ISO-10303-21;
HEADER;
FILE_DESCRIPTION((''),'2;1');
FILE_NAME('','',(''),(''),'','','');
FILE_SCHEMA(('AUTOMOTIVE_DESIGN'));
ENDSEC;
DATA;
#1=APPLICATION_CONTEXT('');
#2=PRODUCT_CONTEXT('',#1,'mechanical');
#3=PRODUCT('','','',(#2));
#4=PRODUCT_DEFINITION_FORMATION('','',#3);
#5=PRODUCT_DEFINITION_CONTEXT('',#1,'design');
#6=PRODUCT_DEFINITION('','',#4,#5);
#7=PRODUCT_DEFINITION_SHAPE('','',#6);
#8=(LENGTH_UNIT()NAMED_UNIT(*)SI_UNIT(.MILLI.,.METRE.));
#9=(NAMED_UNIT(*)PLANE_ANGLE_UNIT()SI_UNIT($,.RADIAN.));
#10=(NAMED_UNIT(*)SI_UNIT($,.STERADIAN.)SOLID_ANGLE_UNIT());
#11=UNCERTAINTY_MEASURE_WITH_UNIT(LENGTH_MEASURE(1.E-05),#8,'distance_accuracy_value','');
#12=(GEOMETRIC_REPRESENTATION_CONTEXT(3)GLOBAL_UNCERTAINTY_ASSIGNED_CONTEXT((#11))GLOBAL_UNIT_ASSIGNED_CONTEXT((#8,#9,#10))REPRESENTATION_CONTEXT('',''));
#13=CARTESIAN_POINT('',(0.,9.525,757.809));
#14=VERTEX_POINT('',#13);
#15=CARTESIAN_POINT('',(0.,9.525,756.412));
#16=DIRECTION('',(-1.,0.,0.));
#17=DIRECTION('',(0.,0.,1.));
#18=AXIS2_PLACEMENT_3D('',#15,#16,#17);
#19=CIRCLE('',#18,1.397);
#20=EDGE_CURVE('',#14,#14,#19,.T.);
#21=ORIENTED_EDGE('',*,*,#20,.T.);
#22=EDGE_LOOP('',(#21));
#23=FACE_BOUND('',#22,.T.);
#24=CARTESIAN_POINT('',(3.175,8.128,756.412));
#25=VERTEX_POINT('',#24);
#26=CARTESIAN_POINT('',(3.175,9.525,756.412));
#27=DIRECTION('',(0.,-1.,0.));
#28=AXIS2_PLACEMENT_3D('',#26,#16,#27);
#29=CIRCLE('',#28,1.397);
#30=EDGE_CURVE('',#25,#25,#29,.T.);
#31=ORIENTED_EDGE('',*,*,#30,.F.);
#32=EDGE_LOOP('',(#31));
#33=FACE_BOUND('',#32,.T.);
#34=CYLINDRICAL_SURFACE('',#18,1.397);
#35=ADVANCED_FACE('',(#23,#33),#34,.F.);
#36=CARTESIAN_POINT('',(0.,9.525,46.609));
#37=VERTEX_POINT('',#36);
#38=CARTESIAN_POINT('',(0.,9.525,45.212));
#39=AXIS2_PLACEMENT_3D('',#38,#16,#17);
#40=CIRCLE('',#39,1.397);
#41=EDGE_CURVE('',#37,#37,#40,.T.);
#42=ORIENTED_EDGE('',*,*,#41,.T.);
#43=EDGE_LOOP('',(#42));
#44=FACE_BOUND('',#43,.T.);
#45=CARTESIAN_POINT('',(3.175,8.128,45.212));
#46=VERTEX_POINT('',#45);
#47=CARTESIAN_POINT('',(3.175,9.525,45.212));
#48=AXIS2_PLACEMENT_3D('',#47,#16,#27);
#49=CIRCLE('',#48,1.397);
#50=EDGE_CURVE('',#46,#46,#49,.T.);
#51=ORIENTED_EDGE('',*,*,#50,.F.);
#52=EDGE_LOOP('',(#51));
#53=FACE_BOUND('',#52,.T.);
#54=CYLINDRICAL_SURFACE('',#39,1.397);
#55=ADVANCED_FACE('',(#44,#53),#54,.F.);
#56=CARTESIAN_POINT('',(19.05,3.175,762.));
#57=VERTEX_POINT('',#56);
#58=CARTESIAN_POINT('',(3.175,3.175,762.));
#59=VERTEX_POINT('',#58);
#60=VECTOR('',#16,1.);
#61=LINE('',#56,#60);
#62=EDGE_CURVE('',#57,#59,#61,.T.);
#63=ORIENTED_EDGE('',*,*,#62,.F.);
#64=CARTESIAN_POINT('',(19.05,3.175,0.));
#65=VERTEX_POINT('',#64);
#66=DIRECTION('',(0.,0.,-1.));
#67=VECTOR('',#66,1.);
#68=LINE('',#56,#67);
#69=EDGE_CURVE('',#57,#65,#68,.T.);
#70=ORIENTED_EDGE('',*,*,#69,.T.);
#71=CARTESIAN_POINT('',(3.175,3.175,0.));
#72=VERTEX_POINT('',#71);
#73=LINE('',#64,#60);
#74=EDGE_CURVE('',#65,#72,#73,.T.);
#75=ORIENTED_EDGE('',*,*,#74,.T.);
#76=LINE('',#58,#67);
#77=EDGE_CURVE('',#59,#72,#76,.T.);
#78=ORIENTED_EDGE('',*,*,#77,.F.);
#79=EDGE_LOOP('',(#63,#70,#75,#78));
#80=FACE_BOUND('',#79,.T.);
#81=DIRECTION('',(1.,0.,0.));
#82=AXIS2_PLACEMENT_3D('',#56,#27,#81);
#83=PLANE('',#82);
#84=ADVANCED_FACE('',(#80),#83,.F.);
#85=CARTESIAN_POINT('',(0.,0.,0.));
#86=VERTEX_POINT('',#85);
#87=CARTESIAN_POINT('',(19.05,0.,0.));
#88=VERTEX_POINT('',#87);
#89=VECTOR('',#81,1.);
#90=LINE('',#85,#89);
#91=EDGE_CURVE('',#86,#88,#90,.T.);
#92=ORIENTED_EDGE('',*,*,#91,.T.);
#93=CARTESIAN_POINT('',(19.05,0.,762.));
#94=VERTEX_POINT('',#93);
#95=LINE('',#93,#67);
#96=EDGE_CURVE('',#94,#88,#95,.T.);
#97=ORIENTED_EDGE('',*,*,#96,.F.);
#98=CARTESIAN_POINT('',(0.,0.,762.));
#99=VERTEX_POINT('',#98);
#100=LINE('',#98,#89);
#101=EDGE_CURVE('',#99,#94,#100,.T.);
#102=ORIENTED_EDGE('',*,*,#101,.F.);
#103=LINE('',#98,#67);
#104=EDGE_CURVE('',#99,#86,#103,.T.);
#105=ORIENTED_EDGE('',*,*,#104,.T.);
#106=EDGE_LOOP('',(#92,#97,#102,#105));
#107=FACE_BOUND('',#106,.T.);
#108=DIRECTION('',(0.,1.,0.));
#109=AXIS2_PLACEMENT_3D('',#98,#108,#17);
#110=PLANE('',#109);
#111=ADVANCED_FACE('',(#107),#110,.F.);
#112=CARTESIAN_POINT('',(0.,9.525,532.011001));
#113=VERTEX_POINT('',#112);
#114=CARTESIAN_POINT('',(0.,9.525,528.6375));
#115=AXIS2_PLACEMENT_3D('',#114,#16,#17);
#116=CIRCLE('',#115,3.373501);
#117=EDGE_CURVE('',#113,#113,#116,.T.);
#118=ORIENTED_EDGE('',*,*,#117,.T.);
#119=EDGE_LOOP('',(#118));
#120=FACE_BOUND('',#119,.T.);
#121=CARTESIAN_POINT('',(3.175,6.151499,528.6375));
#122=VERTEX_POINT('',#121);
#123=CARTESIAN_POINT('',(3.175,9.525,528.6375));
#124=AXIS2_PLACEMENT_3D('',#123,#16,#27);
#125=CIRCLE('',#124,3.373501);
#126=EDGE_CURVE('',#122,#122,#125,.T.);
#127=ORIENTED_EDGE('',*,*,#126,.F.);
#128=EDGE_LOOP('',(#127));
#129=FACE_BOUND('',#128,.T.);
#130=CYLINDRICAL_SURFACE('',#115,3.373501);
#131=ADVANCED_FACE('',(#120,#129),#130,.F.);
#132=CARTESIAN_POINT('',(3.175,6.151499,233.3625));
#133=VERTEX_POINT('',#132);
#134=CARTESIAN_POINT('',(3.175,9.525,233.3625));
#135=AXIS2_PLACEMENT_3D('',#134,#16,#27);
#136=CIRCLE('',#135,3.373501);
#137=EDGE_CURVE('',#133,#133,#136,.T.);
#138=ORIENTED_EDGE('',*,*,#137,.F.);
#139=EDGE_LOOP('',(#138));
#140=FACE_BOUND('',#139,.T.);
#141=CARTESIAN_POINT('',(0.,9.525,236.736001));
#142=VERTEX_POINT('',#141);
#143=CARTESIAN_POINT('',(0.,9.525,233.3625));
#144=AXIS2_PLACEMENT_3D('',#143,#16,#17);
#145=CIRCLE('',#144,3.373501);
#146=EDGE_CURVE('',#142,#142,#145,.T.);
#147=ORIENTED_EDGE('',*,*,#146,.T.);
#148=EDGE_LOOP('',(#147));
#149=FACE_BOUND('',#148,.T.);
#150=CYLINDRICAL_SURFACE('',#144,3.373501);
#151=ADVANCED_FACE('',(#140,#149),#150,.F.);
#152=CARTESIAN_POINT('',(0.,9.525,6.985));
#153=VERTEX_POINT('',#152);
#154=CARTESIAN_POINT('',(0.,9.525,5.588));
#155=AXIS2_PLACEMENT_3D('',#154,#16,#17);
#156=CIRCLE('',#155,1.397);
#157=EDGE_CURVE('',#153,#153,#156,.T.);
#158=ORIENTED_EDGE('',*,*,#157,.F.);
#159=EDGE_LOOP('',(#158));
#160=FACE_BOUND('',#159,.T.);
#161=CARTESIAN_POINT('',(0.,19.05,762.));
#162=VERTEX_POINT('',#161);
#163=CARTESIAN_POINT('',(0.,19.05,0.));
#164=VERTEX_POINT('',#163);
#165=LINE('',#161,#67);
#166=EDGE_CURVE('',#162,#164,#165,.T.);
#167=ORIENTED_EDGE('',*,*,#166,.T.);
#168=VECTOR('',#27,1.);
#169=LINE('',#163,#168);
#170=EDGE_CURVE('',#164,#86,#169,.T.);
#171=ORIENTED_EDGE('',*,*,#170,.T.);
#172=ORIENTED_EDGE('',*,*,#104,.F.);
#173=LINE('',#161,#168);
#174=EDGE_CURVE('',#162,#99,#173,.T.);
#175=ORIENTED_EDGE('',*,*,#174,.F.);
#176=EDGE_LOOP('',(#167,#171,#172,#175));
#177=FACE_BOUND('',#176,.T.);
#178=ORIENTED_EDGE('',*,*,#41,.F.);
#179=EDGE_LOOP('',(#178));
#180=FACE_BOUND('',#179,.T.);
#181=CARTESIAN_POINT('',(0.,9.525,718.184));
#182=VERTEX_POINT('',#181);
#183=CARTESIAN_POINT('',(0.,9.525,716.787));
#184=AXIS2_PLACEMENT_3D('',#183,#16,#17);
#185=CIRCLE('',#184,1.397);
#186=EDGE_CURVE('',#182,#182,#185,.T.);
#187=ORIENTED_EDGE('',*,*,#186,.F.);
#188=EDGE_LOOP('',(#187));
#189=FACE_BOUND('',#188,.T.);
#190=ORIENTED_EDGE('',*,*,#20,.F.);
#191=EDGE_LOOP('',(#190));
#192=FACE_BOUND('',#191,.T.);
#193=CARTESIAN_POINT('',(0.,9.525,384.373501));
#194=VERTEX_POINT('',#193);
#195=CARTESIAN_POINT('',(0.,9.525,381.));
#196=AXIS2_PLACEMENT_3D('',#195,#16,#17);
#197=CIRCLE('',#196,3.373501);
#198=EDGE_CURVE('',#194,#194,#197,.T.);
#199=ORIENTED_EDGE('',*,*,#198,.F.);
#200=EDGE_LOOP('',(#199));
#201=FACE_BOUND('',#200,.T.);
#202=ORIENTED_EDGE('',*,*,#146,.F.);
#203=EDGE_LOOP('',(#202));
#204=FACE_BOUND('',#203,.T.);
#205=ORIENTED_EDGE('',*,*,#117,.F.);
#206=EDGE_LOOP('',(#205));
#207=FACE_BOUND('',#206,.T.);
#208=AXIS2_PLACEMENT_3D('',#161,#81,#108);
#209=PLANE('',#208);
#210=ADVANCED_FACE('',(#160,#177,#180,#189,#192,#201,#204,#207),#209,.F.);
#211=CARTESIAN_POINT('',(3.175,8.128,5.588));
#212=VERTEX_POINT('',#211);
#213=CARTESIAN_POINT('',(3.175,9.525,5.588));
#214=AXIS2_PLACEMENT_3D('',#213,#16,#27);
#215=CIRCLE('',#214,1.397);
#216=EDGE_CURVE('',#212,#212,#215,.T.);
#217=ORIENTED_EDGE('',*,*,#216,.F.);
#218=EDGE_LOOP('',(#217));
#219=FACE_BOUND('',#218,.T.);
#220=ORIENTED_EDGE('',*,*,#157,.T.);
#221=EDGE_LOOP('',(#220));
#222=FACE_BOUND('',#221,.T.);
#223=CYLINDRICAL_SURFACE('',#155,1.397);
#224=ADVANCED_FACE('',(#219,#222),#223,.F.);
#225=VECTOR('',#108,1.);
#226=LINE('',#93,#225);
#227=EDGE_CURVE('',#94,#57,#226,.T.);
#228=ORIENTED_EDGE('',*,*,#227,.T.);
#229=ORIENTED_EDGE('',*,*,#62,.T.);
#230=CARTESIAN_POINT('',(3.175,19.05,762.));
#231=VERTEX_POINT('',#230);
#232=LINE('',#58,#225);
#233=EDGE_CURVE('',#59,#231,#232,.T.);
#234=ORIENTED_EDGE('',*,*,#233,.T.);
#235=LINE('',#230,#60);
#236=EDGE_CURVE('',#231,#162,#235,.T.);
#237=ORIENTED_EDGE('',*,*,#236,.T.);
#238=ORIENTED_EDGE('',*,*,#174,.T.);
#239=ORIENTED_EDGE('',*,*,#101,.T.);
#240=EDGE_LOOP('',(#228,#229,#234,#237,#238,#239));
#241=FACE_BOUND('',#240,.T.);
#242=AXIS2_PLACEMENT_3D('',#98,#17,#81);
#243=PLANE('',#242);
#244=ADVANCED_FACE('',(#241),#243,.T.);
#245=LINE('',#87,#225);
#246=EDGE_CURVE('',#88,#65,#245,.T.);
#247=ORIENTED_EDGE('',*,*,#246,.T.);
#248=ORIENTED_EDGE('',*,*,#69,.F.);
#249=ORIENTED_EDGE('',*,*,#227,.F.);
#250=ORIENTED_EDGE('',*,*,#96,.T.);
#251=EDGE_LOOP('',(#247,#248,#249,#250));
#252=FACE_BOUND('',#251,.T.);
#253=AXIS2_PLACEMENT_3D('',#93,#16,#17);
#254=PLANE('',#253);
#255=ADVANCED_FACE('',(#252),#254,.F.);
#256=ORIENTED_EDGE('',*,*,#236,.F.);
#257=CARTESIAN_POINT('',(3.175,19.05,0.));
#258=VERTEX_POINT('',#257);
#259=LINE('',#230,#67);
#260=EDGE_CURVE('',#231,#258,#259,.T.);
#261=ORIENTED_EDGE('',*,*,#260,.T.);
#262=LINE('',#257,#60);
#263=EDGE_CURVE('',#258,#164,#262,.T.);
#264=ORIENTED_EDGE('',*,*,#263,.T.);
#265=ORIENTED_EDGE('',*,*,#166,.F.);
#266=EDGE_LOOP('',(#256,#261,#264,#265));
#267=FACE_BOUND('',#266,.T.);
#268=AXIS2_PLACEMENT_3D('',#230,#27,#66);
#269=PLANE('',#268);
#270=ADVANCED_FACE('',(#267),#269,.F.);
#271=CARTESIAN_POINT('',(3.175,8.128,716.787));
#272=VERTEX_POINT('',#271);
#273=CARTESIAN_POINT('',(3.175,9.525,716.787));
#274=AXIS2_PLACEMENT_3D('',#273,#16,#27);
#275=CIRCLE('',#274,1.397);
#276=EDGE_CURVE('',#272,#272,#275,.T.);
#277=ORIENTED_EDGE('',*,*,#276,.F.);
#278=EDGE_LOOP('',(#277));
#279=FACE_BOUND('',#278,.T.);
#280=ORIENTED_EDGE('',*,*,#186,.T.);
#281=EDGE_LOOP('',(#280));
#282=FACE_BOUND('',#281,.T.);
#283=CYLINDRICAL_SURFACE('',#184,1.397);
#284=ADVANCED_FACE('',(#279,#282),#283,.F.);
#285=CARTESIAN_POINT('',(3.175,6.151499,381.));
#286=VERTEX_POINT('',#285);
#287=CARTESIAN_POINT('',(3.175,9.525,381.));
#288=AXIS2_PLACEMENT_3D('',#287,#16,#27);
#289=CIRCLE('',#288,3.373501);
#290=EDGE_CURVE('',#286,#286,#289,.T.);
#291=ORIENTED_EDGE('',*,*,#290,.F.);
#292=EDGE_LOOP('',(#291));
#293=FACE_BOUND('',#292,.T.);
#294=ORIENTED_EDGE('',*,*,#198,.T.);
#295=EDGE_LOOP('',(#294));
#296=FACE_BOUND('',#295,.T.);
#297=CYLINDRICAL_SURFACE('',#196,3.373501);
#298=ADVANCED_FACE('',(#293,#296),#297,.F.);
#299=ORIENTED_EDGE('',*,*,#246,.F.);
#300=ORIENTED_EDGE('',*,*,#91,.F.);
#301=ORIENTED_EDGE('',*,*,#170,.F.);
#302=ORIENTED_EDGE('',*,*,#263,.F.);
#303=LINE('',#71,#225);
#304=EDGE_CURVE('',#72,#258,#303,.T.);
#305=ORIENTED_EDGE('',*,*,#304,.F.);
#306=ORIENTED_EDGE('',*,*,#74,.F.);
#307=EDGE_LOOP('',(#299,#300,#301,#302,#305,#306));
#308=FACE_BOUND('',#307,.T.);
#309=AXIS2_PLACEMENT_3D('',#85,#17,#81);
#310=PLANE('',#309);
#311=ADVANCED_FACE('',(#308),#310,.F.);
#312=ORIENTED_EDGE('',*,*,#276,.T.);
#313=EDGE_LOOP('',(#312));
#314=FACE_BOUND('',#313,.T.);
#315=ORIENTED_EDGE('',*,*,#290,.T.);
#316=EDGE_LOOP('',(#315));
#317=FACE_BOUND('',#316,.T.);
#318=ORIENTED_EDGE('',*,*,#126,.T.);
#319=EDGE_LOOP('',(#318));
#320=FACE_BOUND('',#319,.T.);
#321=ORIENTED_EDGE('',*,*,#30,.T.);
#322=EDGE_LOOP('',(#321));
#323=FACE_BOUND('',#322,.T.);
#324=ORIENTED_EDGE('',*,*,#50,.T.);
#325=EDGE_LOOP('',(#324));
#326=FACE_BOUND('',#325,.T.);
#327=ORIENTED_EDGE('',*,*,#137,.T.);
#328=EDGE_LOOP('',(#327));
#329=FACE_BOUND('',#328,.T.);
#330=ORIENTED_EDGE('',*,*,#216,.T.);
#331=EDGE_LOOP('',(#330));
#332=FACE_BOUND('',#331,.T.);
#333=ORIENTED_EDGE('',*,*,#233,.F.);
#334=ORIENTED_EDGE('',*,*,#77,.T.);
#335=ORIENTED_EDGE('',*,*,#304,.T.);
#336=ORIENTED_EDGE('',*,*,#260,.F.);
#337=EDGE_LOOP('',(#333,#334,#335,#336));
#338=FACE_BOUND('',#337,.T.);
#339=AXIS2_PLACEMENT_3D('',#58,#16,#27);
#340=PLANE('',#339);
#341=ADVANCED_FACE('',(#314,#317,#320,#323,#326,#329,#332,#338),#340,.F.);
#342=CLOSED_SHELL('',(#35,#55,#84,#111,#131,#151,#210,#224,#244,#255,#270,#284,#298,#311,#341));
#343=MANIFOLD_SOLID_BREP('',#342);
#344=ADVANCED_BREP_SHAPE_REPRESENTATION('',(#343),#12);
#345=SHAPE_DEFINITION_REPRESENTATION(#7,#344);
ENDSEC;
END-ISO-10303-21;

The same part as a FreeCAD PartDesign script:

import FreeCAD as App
import Part
import Sketcher
from FreeCAD import Vector
Q = App.Units.Quantity


def add_polygon(sketch, points):
    """Adds a closed chain of lines whose ends are joined by coincident constraints."""
    first, n = sketch.GeometryCount, len(points)
    for a, b in zip(points, points[1:] + points[:1]):
        sketch.addGeometry(Part.LineSegment(App.Vector(*a, 0), App.Vector(*b, 0)), False)
    for i in range(n):
        sketch.addConstraint(Sketcher.Constraint("Coincident", first + i, 2, first + (i + 1) % n, 1))

doc = App.newDocument("Part")
params = doc.addObject("Spreadsheet::Sheet", "Params")
for row, (alias, value) in enumerate([
    ("sketch1_width", "0.75 in"),
    ("sketch1_width2", "0.625 in"),
    ("pad1_length", "30 in"),
    ("sketch2_diameter", "0.11 in"),
    ("hole_diameter", "0.11 in"),
    ("hole2_diameter", "6.747002 mm"),
    ("hole2_depth", "10 mm"),
], start=1):
    params.set(f"A{row}", alias)
    params.set(f"B{row}", "=" + value)
    params.setAlias(f"B{row}", alias)

body = doc.addObject("PartDesign::Body", "Body")

# Sketch on XY plane
sketch1 = body.newObject("Sketcher::SketchObject", "Sketch")
sketch1.AttachmentSupport = (doc.getObject("XY_Plane"), [""])
sketch1.MapMode = "FlatFace"
add_polygon(sketch1, [(0, 0), (19.1, 0), (19.1, 3.2), (3.2, 3.2), (3.2, 19.1), (0, 19.1)])  # lines 0-5
sketch1.addConstraint([
    Sketcher.Constraint("Horizontal", 0),
    Sketcher.Constraint("Vertical", 1),
    Sketcher.Constraint("Horizontal", 2),
    Sketcher.Constraint("Vertical", 3),
    Sketcher.Constraint("Horizontal", 4),
    Sketcher.Constraint("Vertical", 5),
    Sketcher.Constraint("Coincident", 5, 2, -1, 1),
    Sketcher.Constraint("Equal", 4, 1),
    Sketcher.Constraint("Equal", 2, 3),
    Sketcher.Constraint("DistanceX", 0, 1, 0, 2, Q("0.75 in")),
    Sketcher.Constraint("DistanceX", 2, 2, 2, 1, Q("0.625 in")),
])
sketch1.setExpression("Constraints[15]", "Params.sketch1_width")
sketch1.setExpression("Constraints[16]", "Params.sketch1_width2")
pad1 = body.newObject("PartDesign::Pad", "Pad")
pad1.Profile = sketch1
pad1.setExpression("Length", "Params.pad1_length")

# Sketch on YZ plane
sketch2 = body.newObject("Sketcher::SketchObject", "Sketch001")
sketch2.AttachmentSupport = (doc.getObject("YZ_Plane"), [""])
sketch2.MapMode = "FlatFace"
sketch2.addGeometry([
    Part.Circle(Vector(9.5, 5.6, 0), Vector(0, 0, 1), 1.4),
    Part.Circle(Vector(9.5, 45.2, 0), Vector(0, 0, 1), 1.4),
    Part.Circle(Vector(9.5, 716.8, 0), Vector(0, 0, 1), 1.4),
    Part.Circle(Vector(9.5, 756.4, 0), Vector(0, 0, 1), 1.4),
], False)
sketch2.addConstraint([
    Sketcher.Constraint("Equal", 0, 1),
    Sketcher.Constraint("Equal", 1, 2),
    Sketcher.Constraint("Equal", 2, 3),
    Sketcher.Constraint("Vertical", 0, 3, 1, 3),
    Sketcher.Constraint("Vertical", 1, 3, 2, 3),
    Sketcher.Constraint("Vertical", 2, 3, 3, 3),
    Sketcher.Constraint("Diameter", 0, Q("0.11 in")),
    Sketcher.Constraint("DistanceY", 1, 3, 3, 3, Q("28 in")),
    Sketcher.Constraint("DistanceY", -1, 1, 0, 3, Q("0.22 in")),
    Sketcher.Constraint("DistanceY", -1, 1, 1, 3, Q("1.78 in")),
    Sketcher.Constraint("DistanceX", -1, 1, 0, 3, Q("0.375 in")),
    Sketcher.Constraint("DistanceY", -1, 1, 2, 3, Q("716.787 mm")),
])
sketch2.setExpression("Constraints[6]", "Params.sketch2_diameter")
doc.recompute()
hole = body.newObject("PartDesign::Hole", "Hole")
hole.Profile = sketch2
hole.ThreadType = "None"
hole.setExpression("Diameter", "Params.hole_diameter")
hole.DepthType = "ThroughAll"
hole.Reversed = True

# Sketch on YZ plane
sketch3 = body.newObject("Sketcher::SketchObject", "Sketch002")
sketch3.AttachmentSupport = (doc.getObject("YZ_Plane"), [""])
sketch3.MapMode = "FlatFace"
sketch3.addGeometry([
    Part.Circle(Vector(9.5, 233.4, 0), Vector(0, 0, 1), 3.4),
    Part.Circle(Vector(9.5, 381, 0), Vector(0, 0, 1), 3.4),
    Part.Circle(Vector(9.5, 528.6, 0), Vector(0, 0, 1), 3.4),
], False)
sketch3.addConstraint([
    Sketcher.Constraint("Equal", 0, 1),
    Sketcher.Constraint("Equal", 1, 2),
    Sketcher.Constraint("Vertical", 0, 3, 1, 3),
    Sketcher.Constraint("Vertical", 1, 3, 2, 3),
    Sketcher.Constraint("DistanceY", -1, 1, 1, 3, Q("15 in")),
    Sketcher.Constraint("DistanceX", -1, 1, 0, 3, Q("0.375 in")),
    Sketcher.Constraint("DistanceY", -1, 1, 0, 3, Q("9.1875 in")),
    Sketcher.Constraint("DistanceY", -1, 1, 2, 3, Q("20.8125 in")),
    Sketcher.Constraint("Diameter", 0, Q("6.747002 mm")),
])
doc.recompute()
hole2 = body.newObject("PartDesign::Hole", "Hole001")
hole2.Profile = sketch3
hole2.ThreadType = "None"
hole2.setExpression("Diameter", "Params.hole2_diameter")
hole2.DepthType = "Dimension"
hole2.setExpression("Depth", "Params.hole2_depth")
hole2.DrillPoint = "Angled"
hole2.DrillPointAngle = 118
hole2.Reversed = True

doc.recompute()
